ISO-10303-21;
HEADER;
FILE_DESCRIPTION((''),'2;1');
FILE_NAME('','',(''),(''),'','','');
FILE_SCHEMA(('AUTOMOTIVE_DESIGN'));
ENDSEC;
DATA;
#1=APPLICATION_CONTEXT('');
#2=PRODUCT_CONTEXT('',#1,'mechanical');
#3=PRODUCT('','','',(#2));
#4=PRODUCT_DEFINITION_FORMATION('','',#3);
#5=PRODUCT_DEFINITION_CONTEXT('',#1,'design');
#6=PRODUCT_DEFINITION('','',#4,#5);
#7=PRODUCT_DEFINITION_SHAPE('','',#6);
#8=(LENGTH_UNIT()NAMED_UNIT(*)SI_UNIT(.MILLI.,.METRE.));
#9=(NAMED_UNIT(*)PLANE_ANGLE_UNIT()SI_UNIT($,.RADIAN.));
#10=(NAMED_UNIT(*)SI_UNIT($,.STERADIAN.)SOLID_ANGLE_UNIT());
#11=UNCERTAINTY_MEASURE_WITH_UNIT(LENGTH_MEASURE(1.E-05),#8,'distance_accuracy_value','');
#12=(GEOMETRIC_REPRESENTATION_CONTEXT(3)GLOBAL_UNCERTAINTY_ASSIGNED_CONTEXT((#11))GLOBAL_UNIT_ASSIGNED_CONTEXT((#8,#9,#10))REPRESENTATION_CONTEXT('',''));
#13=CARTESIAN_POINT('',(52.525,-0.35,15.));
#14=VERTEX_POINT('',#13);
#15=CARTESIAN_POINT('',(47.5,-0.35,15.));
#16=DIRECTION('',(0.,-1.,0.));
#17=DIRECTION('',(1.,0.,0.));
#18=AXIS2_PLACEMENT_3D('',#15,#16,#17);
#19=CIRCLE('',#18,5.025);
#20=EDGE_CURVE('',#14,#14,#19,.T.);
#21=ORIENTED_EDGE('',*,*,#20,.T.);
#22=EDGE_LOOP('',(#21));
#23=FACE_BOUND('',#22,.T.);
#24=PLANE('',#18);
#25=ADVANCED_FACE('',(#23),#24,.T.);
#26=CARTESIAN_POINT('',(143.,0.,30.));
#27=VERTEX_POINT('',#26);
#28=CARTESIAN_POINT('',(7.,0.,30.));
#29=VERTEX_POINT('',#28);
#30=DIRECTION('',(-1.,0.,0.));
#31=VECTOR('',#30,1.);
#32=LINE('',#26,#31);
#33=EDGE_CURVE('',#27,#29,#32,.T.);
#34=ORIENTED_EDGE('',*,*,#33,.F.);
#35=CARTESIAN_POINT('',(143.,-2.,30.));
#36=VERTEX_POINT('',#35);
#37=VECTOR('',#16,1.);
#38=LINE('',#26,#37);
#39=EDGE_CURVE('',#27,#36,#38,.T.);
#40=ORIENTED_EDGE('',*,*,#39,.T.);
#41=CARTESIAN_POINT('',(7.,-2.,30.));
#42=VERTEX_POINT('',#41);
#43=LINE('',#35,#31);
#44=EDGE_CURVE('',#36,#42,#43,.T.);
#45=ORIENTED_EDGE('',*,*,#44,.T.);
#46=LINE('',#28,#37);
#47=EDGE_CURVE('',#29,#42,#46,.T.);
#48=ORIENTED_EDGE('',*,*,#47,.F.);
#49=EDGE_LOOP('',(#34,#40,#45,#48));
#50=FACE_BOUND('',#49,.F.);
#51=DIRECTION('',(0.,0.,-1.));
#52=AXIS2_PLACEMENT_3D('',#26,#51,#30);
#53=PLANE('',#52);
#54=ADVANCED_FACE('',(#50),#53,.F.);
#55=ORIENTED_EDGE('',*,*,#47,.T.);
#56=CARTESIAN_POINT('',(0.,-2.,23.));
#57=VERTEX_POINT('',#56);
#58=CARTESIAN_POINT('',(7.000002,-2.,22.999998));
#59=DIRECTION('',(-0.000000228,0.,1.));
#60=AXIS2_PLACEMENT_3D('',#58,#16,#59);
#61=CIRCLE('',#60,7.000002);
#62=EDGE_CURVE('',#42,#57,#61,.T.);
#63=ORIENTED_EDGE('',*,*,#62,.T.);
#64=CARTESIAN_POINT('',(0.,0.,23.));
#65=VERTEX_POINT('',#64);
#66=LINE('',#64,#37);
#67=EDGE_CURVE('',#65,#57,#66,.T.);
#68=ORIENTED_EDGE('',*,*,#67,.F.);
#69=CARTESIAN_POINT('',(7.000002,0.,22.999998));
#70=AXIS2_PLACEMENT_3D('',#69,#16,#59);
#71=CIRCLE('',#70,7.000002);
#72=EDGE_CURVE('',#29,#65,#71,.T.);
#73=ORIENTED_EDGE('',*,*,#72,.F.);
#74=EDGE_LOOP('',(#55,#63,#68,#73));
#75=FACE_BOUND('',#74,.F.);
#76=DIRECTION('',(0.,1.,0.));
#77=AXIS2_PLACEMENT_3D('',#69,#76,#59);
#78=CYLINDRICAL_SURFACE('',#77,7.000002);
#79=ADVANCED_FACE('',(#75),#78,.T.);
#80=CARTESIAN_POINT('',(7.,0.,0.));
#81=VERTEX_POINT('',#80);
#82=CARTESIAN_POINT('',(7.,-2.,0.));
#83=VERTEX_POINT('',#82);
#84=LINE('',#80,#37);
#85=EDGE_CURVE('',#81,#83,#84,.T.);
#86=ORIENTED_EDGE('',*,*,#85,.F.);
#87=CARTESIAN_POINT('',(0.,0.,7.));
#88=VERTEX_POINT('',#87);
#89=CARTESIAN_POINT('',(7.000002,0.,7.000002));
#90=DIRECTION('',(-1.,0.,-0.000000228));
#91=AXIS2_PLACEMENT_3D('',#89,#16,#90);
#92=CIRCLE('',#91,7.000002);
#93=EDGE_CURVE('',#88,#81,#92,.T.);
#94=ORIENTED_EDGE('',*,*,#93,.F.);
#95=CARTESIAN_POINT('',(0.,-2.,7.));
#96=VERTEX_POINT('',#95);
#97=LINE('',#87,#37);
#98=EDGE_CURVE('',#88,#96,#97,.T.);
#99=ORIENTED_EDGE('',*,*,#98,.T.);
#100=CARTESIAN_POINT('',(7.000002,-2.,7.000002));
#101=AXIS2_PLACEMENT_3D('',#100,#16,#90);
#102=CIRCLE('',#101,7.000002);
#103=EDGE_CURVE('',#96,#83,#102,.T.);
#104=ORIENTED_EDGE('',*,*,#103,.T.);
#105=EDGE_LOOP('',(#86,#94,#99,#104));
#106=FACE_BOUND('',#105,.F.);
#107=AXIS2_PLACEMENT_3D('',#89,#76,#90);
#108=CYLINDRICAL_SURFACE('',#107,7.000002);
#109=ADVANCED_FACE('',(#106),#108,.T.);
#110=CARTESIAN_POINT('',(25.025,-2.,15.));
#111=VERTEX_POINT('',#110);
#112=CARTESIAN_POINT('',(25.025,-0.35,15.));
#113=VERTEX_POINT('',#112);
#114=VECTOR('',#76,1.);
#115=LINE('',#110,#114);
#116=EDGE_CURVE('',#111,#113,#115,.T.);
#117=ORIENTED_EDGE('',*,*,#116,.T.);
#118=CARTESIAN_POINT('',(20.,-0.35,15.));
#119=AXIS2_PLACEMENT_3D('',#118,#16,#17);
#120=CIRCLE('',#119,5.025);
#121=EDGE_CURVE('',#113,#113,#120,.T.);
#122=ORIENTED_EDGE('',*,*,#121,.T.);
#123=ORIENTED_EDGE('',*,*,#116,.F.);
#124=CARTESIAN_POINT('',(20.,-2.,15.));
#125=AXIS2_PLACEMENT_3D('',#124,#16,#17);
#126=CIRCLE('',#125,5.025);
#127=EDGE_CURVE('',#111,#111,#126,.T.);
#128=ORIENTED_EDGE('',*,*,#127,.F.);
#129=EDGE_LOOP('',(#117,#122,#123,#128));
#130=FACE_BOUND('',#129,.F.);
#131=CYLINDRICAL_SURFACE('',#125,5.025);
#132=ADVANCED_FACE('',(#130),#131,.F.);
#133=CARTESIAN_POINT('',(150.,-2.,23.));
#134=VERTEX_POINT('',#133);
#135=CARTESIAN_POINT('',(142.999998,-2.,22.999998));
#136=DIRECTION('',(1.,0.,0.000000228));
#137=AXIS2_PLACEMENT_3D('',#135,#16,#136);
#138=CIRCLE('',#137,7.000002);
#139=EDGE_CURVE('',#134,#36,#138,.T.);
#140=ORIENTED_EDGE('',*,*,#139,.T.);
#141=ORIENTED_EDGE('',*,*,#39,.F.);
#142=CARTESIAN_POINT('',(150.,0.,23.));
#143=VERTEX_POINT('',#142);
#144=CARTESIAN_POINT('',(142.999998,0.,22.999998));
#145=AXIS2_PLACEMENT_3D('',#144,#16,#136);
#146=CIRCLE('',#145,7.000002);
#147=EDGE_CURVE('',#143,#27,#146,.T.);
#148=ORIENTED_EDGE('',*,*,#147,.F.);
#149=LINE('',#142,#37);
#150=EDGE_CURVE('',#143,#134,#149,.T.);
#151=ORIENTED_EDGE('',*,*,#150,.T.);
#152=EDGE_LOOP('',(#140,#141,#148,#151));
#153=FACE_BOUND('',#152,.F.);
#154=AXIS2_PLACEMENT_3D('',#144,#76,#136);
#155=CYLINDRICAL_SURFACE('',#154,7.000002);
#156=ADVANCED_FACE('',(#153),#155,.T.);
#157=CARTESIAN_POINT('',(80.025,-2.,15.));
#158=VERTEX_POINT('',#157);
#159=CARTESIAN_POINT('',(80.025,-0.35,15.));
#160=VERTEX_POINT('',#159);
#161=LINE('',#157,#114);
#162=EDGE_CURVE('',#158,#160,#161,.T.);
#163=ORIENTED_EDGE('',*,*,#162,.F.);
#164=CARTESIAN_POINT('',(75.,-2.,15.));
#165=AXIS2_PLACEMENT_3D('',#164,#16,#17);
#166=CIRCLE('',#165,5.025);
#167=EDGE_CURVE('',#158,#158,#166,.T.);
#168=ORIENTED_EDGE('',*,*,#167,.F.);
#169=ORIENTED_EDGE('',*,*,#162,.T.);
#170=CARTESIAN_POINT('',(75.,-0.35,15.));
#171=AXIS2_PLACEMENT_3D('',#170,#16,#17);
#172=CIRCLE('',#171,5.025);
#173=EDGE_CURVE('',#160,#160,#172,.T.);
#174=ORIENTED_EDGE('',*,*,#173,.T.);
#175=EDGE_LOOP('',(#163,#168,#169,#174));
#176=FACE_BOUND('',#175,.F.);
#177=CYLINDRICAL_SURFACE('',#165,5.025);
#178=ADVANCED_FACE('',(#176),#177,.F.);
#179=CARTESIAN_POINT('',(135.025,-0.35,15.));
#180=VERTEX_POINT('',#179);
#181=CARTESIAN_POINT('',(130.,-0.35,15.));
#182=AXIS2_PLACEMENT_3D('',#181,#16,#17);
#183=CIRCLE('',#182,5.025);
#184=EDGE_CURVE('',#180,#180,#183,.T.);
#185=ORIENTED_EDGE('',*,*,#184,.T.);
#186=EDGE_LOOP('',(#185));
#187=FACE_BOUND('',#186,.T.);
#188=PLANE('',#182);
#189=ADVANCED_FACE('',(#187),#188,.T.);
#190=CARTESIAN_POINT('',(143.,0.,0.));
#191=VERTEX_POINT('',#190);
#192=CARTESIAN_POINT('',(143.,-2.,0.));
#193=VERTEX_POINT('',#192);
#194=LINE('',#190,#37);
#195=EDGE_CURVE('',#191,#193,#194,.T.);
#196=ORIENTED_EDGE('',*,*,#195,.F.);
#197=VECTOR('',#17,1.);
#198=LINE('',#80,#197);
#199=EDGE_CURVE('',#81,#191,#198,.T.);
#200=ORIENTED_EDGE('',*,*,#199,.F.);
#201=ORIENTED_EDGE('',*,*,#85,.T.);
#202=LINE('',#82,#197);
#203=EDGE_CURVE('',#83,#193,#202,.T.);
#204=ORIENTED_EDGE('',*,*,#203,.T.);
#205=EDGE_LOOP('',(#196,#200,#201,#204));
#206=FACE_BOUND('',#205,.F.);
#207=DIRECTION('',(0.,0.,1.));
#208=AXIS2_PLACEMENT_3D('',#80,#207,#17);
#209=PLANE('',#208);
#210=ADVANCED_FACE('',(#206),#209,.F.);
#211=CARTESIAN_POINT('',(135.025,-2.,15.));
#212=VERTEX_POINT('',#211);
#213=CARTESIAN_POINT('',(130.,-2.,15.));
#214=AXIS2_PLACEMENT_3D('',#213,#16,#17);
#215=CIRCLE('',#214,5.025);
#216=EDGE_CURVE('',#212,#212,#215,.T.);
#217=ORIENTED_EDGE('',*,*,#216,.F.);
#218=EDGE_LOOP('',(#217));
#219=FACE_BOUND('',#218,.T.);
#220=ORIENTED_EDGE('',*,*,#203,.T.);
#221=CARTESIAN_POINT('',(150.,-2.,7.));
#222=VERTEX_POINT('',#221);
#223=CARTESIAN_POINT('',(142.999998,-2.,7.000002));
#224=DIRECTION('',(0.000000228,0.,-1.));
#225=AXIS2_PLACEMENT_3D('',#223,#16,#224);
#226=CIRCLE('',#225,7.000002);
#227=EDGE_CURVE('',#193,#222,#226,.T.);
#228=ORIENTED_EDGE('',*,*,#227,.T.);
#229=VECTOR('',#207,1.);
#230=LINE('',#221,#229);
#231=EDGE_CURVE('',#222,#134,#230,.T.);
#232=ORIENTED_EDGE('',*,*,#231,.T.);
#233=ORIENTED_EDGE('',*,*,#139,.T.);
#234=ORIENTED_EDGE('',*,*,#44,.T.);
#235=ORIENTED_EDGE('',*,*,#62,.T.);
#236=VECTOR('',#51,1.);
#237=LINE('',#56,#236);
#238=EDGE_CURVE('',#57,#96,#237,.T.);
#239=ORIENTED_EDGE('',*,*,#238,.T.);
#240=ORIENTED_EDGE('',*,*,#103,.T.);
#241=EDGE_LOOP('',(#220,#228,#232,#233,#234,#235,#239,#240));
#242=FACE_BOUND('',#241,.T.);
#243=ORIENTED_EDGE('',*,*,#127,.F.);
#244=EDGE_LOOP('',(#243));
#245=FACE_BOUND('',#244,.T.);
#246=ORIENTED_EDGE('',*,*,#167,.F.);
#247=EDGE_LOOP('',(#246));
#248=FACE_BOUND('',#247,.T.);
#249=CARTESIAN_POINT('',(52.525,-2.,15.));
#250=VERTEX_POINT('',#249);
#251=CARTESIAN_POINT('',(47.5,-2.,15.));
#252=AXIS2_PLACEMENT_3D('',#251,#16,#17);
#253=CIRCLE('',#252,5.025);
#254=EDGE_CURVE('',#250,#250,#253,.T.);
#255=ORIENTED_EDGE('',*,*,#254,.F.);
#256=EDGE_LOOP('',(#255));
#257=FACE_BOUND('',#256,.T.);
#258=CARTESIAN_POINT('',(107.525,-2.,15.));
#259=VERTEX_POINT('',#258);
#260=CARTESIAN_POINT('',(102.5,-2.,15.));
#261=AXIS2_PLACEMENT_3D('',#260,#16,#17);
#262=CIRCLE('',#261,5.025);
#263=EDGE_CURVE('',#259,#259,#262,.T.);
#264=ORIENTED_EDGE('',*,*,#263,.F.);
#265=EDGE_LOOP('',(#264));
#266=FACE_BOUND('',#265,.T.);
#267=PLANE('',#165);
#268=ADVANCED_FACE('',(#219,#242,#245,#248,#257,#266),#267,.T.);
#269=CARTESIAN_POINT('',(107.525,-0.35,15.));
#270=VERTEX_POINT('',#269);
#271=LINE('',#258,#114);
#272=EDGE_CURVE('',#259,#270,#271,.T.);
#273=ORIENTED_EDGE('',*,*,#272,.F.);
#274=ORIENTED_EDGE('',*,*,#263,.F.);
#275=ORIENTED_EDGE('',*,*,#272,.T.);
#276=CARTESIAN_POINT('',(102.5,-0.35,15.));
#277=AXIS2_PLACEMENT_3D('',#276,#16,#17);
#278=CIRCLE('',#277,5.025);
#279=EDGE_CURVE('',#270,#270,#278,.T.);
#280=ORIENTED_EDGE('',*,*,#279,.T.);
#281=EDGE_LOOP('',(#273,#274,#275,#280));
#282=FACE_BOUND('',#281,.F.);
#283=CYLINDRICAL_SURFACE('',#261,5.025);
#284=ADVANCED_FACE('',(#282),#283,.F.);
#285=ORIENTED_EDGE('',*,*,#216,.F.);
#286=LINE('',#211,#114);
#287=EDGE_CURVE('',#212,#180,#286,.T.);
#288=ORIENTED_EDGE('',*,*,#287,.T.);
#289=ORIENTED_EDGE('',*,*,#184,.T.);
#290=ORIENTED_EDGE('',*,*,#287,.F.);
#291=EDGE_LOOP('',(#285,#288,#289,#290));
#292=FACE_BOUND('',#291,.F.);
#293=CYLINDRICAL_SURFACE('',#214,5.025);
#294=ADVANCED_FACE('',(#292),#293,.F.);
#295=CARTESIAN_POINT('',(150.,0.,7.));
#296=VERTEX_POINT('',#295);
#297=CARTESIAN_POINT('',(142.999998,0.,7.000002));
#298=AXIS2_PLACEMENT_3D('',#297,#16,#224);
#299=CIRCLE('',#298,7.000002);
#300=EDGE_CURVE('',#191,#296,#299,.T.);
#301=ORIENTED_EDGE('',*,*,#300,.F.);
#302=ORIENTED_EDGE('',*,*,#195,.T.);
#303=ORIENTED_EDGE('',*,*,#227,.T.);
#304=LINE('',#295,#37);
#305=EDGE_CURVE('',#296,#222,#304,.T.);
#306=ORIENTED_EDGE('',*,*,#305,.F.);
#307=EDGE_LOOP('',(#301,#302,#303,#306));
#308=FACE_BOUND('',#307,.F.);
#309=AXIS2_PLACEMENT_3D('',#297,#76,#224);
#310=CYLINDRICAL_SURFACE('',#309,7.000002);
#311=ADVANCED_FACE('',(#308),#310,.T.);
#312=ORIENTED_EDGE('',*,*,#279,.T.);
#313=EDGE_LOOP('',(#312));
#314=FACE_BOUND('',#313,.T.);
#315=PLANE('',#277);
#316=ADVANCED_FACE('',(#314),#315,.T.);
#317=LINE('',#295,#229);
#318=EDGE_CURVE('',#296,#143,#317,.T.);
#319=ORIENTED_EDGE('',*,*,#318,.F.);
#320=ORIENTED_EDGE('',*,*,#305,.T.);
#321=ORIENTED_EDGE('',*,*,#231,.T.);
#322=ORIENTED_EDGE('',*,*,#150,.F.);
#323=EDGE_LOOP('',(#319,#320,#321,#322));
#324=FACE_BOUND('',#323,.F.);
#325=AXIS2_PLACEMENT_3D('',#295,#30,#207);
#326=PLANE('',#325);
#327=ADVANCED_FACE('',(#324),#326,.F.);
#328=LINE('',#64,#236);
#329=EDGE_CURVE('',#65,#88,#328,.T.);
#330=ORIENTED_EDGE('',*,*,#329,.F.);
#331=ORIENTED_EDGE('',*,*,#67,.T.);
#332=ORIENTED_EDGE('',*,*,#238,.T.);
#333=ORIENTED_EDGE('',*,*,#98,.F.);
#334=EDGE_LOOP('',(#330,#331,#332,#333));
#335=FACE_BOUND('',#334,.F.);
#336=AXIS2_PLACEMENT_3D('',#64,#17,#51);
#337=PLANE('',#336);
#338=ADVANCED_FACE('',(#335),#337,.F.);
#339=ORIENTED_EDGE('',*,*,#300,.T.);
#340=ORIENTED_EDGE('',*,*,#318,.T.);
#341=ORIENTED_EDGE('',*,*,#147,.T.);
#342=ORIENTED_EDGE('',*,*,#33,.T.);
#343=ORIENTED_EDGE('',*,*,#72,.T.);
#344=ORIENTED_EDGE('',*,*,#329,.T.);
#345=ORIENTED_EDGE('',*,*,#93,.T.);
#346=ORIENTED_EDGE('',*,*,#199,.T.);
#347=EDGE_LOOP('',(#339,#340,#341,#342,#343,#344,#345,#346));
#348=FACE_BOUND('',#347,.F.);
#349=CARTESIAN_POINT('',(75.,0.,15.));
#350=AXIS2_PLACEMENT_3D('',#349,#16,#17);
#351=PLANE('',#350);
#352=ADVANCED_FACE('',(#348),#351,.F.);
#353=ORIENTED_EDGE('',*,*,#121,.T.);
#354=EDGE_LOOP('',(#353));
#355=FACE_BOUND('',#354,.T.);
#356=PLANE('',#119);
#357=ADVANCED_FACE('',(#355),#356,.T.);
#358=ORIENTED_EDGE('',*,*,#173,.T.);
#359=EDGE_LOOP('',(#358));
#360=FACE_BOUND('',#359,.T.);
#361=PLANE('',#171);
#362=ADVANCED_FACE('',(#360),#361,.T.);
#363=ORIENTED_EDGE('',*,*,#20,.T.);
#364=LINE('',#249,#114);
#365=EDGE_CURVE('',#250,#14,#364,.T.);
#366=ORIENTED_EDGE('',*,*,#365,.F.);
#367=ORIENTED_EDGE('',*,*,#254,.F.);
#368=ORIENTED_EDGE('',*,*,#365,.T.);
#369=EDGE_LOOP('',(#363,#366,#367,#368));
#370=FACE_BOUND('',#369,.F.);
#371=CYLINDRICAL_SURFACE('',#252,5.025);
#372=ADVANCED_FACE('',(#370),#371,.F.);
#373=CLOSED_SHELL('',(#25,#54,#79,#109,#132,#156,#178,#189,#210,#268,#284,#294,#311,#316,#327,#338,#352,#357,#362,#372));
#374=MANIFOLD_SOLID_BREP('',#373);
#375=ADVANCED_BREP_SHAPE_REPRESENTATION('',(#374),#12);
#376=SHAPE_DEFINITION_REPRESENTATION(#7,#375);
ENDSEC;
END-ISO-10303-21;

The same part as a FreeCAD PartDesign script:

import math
import FreeCAD as App
import Part
import Sketcher
from FreeCAD import Vector
Q = App.Units.Quantity

doc = App.newDocument("Part")
body = doc.addObject("PartDesign::Body", "Body")

# Sketch on XZ plane
sketch1 = body.newObject("Sketcher::SketchObject", "Sketch")
sketch1.AttachmentSupport = (doc.getObject("XZ_Plane"), [""])
sketch1.MapMode = "FlatFace"
sketch1.addGeometry(Part.ArcOfCircle(Part.Circle(Vector(7, 7, 0), Vector(0, 0, 1), 7), math.radians(-180), math.radians(-90)), False)
sketch1.addGeometry(Part.LineSegment(Vector(7, 0, 0), Vector(143, 0, 0)), False)
sketch1.addGeometry(Part.ArcOfCircle(Part.Circle(Vector(143, 7, 0), Vector(0, 0, 1), 7), math.radians(-90), math.radians(0)), False)
sketch1.addGeometry(Part.LineSegment(Vector(150, 7, 0), Vector(150, 23, 0)), False)
sketch1.addGeometry(Part.ArcOfCircle(Part.Circle(Vector(143, 23, 0), Vector(0, 0, 1), 7), math.radians(0), math.radians(90)), False)
sketch1.addGeometry(Part.LineSegment(Vector(143, 30, 0), Vector(7, 30, 0)), False)
sketch1.addGeometry(Part.ArcOfCircle(Part.Circle(Vector(7, 23, 0), Vector(0, 0, 1), 7), math.radians(90), math.radians(180)), False)
sketch1.addGeometry(Part.LineSegment(Vector(0, 23, 0), Vector(0, 7, 0)), False)
sketch1.addConstraint(Sketcher.Constraint("Tangent", 0, 2, 1, 1))
sketch1.addConstraint(Sketcher.Constraint("Tangent", 1, 2, 2, 1))
sketch1.addConstraint(Sketcher.Constraint("Tangent", 2, 2, 3, 1))
sketch1.addConstraint(Sketcher.Constraint("Tangent", 3, 2, 4, 1))
sketch1.addConstraint(Sketcher.Constraint("Tangent", 4, 2, 5, 1))
sketch1.addConstraint(Sketcher.Constraint("Tangent", 5, 2, 6, 1))
sketch1.addConstraint(Sketcher.Constraint("Tangent", 6, 2, 7, 1))
sketch1.addConstraint(Sketcher.Constraint("Tangent", 7, 2, 0, 1))
sketch1.addConstraint(Sketcher.Constraint("Horizontal", 1))
sketch1.addConstraint(Sketcher.Constraint("Vertical", 3))
sketch1.addConstraint(Sketcher.Constraint("Horizontal", 5))
sketch1.addConstraint(Sketcher.Constraint("Vertical", 7))
sketch1.addConstraint(Sketcher.Constraint("Equal", 0, 2))
sketch1.addConstraint(Sketcher.Constraint("Equal", 2, 4))
sketch1.addConstraint(Sketcher.Constraint("Equal", 4, 6))
sketch1.addConstraint(Sketcher.Constraint("PointOnObject", 0, 2, -1))
sketch1.addConstraint(Sketcher.Constraint("PointOnObject", 6, 2, -2))
sketch1.addConstraint(Sketcher.Constraint("Radius", 0, Q("7.000002 mm")))
sketch1.addConstraint(Sketcher.Constraint("DistanceX", 1, 1, 1, 2, Q("136 mm")))
sketch1.addConstraint(Sketcher.Constraint("DistanceY", 3, 1, 3, 2, Q("16 mm")))
pad1 = body.newObject("PartDesign::Pad", "Pad")
pad1.Profile = sketch1
pad1.Length = 2

# Sketch on XZ plane
sketch2 = body.newObject("Sketcher::SketchObject", "Sketch001")
sketch2.AttachmentSupport = (doc.getObject("XZ_Plane"), [""])
sketch2.MapMode = "FlatFace"
sketch2.AttachmentOffset = App.Placement(Vector(0, 0, 2), App.Rotation())
sketch2.addGeometry(Part.Circle(Vector(20, 15, 0), Vector(0, 0, 1), 5), False)
sketch2.addGeometry(Part.Circle(Vector(48, 15, 0), Vector(0, 0, 1), 5), False)
sketch2.addGeometry(Part.Circle(Vector(75, 15, 0), Vector(0, 0, 1), 5), False)
sketch2.addGeometry(Part.Circle(Vector(102, 15, 0), Vector(0, 0, 1), 5), False)
sketch2.addGeometry(Part.Circle(Vector(130, 15, 0), Vector(0, 0, 1), 5), False)
sketch2.addConstraint(Sketcher.Constraint("Equal", 0, 1))
sketch2.addConstraint(Sketcher.Constraint("Equal", 1, 2))
sketch2.addConstraint(Sketcher.Constraint("Equal", 2, 3))
sketch2.addConstraint(Sketcher.Constraint("Equal", 3, 4))
sketch2.addConstraint(Sketcher.Constraint("Horizontal", 0, 3, 1, 3))
sketch2.addConstraint(Sketcher.Constraint("Horizontal", 1, 3, 2, 3))
sketch2.addConstraint(Sketcher.Constraint("Horizontal", 2, 3, 3, 3))
sketch2.addConstraint(Sketcher.Constraint("Horizontal", 3, 3, 4, 3))
sketch2.addConstraint(Sketcher.Constraint("Diameter", 0, Q("10.05 mm")))
sketch2.addConstraint(Sketcher.Constraint("DistanceX", -1, 1, 0, 3, Q("20 mm")))
sketch2.addConstraint(Sketcher.Constraint("DistanceY", -1, 1, 0, 3, Q("15 mm")))
sketch2.addConstraint(Sketcher.Constraint("DistanceX", -1, 1, 2, 3, Q("75 mm")))
sketch2.addConstraint(Sketcher.Constraint("DistanceX", -1, 1, 4, 3, Q("130 mm")))
sketch2.addConstraint(Sketcher.Constraint("DistanceX", 1, 3, 3, 3, Q("55 mm")))
sketch2.addConstraint(Sketcher.Constraint("DistanceX", -1, 1, 1, 3, Q("47.5 mm")))
pocket1 = body.newObject("PartDesign::Pocket", "Pocket")
pocket1.Profile = sketch2
pocket1.Length = 1.65

doc.recompute()
